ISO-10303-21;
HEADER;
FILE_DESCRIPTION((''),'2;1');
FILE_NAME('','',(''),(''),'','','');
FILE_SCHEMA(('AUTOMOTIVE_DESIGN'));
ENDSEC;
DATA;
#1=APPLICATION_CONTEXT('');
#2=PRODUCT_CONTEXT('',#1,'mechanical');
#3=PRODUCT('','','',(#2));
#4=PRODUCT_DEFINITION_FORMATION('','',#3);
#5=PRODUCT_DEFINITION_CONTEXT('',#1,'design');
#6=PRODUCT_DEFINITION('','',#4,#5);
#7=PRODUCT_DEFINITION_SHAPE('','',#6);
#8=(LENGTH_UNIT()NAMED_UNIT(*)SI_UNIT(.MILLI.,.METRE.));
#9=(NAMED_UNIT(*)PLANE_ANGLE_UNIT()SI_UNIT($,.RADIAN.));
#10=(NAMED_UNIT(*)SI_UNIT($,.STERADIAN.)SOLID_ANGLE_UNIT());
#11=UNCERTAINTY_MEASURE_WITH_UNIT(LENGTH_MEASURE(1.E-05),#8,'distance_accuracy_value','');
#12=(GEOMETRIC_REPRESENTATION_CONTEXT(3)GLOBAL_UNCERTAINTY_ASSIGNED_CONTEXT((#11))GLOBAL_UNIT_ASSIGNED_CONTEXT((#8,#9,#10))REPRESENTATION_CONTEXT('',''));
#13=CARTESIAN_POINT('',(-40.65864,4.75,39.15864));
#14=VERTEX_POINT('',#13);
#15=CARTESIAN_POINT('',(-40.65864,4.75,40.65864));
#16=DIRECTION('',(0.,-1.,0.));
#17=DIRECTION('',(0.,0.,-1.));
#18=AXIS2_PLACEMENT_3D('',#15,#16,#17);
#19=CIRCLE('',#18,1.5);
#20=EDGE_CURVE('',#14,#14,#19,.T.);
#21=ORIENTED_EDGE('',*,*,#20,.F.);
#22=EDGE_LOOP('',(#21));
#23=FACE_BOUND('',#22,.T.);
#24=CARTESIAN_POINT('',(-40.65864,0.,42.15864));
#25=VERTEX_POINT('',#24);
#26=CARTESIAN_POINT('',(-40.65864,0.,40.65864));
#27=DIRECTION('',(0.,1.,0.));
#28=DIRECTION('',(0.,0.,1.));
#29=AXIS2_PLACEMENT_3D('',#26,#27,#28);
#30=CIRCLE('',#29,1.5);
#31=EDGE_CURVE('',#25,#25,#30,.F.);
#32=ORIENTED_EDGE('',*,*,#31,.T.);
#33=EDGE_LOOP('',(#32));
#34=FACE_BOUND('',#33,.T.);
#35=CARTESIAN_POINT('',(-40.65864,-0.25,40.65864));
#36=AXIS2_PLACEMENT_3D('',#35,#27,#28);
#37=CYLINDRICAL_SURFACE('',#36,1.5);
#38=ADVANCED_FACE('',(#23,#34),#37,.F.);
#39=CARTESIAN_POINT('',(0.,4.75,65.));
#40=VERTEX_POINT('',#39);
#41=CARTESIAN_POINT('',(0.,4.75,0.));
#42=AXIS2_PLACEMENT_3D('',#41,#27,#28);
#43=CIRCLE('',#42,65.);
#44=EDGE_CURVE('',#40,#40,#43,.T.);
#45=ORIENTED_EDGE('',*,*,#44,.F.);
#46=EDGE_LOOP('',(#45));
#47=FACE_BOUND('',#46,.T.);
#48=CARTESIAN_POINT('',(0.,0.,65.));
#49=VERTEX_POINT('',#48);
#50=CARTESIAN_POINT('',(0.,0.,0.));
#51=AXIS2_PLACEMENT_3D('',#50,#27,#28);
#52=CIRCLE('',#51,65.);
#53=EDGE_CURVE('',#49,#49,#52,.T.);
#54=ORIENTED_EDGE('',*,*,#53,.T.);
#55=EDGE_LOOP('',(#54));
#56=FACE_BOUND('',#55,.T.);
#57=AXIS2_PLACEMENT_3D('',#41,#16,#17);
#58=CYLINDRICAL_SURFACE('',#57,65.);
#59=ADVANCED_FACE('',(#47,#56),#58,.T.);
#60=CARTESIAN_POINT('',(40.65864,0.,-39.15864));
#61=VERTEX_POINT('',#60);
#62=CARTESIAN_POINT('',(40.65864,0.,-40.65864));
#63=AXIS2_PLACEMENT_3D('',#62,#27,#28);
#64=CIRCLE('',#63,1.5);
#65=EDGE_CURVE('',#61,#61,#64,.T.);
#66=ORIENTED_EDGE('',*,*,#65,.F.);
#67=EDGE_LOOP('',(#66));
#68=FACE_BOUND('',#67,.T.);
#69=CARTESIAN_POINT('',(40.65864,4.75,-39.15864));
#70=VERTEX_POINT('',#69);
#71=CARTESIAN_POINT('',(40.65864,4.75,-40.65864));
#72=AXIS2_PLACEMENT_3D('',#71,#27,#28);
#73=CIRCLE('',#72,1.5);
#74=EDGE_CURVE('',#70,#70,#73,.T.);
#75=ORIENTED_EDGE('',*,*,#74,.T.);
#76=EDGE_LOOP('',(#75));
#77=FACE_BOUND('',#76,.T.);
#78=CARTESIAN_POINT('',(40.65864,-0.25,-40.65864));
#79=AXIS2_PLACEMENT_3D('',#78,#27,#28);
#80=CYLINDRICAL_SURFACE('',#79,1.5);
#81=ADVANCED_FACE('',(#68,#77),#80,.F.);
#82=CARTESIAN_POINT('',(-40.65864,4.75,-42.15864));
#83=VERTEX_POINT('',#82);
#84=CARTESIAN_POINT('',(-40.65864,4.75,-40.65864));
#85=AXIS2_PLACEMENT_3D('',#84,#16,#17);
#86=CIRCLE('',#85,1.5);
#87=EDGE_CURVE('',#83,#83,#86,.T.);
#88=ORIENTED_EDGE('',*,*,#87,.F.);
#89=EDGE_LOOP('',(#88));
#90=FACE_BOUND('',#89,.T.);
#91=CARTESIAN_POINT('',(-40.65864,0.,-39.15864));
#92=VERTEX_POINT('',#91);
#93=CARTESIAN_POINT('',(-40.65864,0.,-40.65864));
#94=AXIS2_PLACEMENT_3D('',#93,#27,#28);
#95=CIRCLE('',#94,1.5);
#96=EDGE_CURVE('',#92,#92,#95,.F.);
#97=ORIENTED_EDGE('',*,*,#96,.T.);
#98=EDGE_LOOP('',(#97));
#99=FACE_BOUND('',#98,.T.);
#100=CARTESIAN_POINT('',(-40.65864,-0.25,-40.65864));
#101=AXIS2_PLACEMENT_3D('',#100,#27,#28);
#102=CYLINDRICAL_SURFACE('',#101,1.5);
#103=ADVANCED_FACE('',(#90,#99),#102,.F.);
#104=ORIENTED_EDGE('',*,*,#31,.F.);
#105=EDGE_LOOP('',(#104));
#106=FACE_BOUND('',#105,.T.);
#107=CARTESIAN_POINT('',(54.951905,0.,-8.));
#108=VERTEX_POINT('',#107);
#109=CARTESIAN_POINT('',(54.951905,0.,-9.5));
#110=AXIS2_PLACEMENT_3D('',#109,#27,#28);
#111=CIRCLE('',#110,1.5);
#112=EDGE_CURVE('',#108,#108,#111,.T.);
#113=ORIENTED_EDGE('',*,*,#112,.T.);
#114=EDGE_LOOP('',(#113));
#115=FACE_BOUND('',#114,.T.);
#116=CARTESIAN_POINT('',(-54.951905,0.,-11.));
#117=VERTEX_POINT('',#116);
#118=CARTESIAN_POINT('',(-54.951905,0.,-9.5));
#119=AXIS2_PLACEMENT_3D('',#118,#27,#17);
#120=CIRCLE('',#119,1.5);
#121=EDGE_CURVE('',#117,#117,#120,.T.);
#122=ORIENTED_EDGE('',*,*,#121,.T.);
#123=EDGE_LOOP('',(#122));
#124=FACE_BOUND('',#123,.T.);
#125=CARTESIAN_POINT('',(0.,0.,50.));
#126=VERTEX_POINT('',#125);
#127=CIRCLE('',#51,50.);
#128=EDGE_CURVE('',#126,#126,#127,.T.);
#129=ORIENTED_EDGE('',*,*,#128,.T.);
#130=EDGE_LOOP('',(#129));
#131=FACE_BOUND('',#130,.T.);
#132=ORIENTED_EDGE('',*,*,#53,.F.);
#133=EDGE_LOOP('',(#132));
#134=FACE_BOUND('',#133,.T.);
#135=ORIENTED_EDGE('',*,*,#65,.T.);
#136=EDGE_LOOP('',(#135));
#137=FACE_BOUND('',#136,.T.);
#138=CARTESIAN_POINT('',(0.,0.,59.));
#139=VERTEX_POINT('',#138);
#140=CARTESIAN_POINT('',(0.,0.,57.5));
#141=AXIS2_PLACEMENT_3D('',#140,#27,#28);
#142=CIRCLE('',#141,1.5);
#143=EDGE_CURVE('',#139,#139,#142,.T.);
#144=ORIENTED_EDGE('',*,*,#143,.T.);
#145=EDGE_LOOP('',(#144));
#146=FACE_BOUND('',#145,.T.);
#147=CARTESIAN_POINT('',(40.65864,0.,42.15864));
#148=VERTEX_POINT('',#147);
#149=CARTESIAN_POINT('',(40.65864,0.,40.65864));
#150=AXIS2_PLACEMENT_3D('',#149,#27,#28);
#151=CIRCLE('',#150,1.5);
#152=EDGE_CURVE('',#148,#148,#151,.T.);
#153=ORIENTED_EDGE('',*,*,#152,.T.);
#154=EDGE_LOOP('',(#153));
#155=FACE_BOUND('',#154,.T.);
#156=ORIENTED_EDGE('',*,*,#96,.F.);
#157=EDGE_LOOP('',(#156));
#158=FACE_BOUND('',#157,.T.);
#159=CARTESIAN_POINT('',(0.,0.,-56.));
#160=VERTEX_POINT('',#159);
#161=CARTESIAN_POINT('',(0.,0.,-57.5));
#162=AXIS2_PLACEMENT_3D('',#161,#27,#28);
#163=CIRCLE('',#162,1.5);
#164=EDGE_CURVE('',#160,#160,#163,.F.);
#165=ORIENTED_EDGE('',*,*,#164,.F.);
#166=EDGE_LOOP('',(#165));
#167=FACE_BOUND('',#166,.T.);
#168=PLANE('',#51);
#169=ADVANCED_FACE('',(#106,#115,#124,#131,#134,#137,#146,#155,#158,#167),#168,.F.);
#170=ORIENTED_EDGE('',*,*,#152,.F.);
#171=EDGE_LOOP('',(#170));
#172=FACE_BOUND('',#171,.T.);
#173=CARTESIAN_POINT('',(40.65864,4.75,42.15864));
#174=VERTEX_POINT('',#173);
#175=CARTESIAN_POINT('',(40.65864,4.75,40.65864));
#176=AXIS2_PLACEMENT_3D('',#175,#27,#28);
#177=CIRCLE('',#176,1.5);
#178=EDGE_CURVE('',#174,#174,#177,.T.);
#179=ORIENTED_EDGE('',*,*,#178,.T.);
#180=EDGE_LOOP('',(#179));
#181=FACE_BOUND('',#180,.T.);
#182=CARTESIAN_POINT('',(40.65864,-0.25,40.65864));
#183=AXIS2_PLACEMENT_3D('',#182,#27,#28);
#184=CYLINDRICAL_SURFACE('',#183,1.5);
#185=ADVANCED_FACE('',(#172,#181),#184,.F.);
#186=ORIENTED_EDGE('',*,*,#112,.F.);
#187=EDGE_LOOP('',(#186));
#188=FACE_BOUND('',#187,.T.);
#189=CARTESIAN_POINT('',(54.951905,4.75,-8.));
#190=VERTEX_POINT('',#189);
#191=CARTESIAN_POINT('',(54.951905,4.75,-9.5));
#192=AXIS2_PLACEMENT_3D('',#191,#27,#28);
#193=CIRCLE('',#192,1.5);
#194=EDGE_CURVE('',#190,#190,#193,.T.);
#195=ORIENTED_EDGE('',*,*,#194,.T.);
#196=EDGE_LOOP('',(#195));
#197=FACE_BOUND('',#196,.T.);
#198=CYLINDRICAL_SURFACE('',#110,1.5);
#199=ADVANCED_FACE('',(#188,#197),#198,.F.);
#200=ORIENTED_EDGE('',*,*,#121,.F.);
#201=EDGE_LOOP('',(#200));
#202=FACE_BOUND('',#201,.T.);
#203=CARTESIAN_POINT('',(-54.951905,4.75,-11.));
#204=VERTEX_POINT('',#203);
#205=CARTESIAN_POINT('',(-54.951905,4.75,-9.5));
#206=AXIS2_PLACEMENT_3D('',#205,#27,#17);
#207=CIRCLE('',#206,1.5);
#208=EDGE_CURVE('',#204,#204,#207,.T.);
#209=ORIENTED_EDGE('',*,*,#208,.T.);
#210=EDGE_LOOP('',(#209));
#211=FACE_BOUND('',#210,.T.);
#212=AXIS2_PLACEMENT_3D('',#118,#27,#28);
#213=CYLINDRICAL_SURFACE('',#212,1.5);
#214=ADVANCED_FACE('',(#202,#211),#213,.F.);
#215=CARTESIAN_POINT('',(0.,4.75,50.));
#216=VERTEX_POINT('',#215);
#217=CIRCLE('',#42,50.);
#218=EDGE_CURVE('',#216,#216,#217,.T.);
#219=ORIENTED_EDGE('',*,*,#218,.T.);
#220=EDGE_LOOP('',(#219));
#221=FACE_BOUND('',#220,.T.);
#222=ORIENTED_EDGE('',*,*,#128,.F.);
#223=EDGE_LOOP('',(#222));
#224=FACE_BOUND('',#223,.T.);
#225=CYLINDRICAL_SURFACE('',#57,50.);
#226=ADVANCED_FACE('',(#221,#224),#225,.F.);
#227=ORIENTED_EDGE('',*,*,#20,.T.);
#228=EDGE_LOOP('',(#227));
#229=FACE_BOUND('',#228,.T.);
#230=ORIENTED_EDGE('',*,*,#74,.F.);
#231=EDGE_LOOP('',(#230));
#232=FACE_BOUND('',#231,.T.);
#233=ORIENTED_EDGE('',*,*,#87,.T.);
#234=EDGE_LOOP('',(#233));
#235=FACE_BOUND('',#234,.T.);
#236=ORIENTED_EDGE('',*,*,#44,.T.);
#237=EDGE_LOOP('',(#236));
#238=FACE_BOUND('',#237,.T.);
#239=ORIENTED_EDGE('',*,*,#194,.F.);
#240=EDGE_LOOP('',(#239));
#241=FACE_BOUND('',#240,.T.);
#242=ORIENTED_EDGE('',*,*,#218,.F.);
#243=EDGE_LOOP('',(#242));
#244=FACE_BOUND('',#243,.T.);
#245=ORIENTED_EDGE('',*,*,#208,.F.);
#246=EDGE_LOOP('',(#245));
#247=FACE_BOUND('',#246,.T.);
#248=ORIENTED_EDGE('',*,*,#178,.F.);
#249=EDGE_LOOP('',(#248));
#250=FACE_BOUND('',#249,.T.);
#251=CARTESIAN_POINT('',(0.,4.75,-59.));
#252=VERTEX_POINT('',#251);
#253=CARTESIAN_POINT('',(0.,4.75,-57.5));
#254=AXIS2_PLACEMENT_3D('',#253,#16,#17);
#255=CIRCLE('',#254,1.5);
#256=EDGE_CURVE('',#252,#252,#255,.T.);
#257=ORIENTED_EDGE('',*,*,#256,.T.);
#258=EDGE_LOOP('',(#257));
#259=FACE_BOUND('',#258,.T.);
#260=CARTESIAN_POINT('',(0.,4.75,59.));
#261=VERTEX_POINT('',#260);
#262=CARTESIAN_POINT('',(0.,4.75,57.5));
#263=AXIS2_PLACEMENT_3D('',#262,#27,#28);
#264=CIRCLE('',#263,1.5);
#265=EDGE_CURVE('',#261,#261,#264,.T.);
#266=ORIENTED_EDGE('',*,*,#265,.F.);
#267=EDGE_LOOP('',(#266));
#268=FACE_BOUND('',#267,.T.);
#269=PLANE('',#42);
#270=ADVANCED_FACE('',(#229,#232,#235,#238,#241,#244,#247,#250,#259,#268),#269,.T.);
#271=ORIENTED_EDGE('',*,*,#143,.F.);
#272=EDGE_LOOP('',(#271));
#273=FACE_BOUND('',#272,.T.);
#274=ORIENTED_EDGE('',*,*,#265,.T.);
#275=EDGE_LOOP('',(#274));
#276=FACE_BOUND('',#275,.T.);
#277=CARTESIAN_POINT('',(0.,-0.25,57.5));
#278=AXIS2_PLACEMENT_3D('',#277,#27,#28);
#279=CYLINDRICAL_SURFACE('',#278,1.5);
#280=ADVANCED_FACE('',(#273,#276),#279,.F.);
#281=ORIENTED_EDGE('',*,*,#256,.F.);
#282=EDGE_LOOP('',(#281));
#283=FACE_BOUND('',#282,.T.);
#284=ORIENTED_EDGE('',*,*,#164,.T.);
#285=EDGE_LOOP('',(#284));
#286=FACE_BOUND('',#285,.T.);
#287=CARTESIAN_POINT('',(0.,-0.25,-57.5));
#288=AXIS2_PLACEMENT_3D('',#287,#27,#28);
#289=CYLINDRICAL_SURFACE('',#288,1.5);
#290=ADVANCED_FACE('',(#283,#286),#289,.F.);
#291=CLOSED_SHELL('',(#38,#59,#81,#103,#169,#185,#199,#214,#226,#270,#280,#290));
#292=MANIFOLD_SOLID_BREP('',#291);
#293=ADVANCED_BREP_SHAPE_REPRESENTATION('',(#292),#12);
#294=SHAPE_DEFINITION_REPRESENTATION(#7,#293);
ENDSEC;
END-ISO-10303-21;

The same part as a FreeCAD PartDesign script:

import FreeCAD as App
import Part
import Sketcher
from FreeCAD import Vector

doc = App.newDocument("Part")
body = doc.addObject("PartDesign::Body", "Body")

# Sketch on XZ plane
sketch1 = body.newObject("Sketcher::SketchObject", "Sketch")
sketch1.AttachmentSupport = (doc.getObject("XZ_Plane"), [""])
sketch1.MapMode = "FlatFace"
sketch1.addGeometry([
    Part.Circle(Vector(0, 0, 0), Vector(0, 0, 1), 65),
    Part.Circle(Vector(0, 0, 0), Vector(0, 0, 1), 50),
], False)
sketch1.addConstraint([
    Sketcher.Constraint("Coincident", 0, 3, -1, 1),
    Sketcher.Constraint("Coincident", 1, 3, -1, 1),
    Sketcher.Constraint("Diameter", 0, 130.0),
    Sketcher.Constraint("Diameter", 1, 100.0),
])
pad1 = body.newObject("PartDesign::Pad", "Pad")
pad1.Profile = sketch1
pad1.Length = 4.75
pad1.Reversed = True

# Sketch on XZ plane
sketch2 = body.newObject("Sketcher::SketchObject", "Sketch001")
sketch2.AttachmentSupport = (doc.getObject("XZ_Plane"), [""])
sketch2.MapMode = "FlatFace"
sketch2.AttachmentOffset = App.Placement(Vector(0, 0, -4.75), App.Rotation())
sketch2.addGeometry([
    Part.Circle(Vector(40.7, -40.7, 0), Vector(0, 0, 1), 1.5),  # 0
    Part.Circle(Vector(40.7, 40.7, 0), Vector(0, 0, 1), 1.5),  # 1
    Part.Circle(Vector(0, 57.5, 0), Vector(0, 0, 1), 1.5),  # 2
    Part.Circle(Vector(-40.7, -40.7, 0), Vector(0, 0, 1), 1.5),  # 3
    Part.Circle(Vector(0, -57.5, 0), Vector(0, 0, 1), 1.5),  # 4
    Part.Circle(Vector(-40.7, 40.7, 0), Vector(0, 0, 1), 1.5),  # 5
], False)
sketch2.addConstraint([
    Sketcher.Constraint("Equal", 0, 1),
    Sketcher.Constraint("Equal", 1, 2),
    Sketcher.Constraint("Equal", 2, 3),
    Sketcher.Constraint("Equal", 3, 4),
    Sketcher.Constraint("Equal", 4, 5),
    Sketcher.Constraint("Symmetric", 1, 3, 3, 3, -1, 1),
    Sketcher.Constraint("Symmetric", 2, 3, 4, 3, -1, 1),
    Sketcher.Constraint("Symmetric", 0, 3, 5, 3, -1, 1),
    Sketcher.Constraint("Symmetric", 0, 3, 3, 3, -2),
    Sketcher.Constraint("PointOnObject", 2, 3, -2),
    Sketcher.Constraint("Diameter", 0, 3.0),
    Sketcher.Constraint("DistanceY", 4, 3, 2, 3, 115.0),
    Sketcher.Constraint("DistanceX", -1, 1, 0, 3, 40.65864),
    Sketcher.Constraint("DistanceY", 0, 3, -1, 1, 40.65864),
])
pocket1 = body.newObject("PartDesign::Pocket", "Pocket")
pocket1.Profile = sketch2
pocket1.Length = 5
pocket1.Reversed = True

# Sketch on XZ plane
sketch3 = body.newObject("Sketcher::SketchObject", "Sketch002")
sketch3.AttachmentSupport = (doc.getObject("XZ_Plane"), [""])
sketch3.MapMode = "FlatFace"
sketch3.AttachmentOffset = App.Placement(Vector(0, 0, -4.75), App.Rotation())
sketch3.addGeometry([
    Part.Circle(Vector(55, -9.5, 0), Vector(0, 0, 1), 1.5),
    Part.Circle(Vector(-55, -9.5, 0), Vector(0, 0, 1), 1.5),
], False)
sketch3.addConstraint([
    Sketcher.Constraint("Equal", 0, 1),
    Sketcher.Constraint("Symmetric", 0, 3, 1, 3, -2),
    Sketcher.Constraint("Diameter", 0, 3.0),
    Sketcher.Constraint("DistanceY", 0, 3, -1, 1, 9.5),
    Sketcher.Constraint("DistanceX", 1, 3, 0, 3, 109.903811),
])
pocket2 = body.newObject("PartDesign::Pocket", "Pocket001")
pocket2.Profile = sketch3
pocket2.Type = "ThroughAll"
pocket2.Reversed = True

doc.recompute()
